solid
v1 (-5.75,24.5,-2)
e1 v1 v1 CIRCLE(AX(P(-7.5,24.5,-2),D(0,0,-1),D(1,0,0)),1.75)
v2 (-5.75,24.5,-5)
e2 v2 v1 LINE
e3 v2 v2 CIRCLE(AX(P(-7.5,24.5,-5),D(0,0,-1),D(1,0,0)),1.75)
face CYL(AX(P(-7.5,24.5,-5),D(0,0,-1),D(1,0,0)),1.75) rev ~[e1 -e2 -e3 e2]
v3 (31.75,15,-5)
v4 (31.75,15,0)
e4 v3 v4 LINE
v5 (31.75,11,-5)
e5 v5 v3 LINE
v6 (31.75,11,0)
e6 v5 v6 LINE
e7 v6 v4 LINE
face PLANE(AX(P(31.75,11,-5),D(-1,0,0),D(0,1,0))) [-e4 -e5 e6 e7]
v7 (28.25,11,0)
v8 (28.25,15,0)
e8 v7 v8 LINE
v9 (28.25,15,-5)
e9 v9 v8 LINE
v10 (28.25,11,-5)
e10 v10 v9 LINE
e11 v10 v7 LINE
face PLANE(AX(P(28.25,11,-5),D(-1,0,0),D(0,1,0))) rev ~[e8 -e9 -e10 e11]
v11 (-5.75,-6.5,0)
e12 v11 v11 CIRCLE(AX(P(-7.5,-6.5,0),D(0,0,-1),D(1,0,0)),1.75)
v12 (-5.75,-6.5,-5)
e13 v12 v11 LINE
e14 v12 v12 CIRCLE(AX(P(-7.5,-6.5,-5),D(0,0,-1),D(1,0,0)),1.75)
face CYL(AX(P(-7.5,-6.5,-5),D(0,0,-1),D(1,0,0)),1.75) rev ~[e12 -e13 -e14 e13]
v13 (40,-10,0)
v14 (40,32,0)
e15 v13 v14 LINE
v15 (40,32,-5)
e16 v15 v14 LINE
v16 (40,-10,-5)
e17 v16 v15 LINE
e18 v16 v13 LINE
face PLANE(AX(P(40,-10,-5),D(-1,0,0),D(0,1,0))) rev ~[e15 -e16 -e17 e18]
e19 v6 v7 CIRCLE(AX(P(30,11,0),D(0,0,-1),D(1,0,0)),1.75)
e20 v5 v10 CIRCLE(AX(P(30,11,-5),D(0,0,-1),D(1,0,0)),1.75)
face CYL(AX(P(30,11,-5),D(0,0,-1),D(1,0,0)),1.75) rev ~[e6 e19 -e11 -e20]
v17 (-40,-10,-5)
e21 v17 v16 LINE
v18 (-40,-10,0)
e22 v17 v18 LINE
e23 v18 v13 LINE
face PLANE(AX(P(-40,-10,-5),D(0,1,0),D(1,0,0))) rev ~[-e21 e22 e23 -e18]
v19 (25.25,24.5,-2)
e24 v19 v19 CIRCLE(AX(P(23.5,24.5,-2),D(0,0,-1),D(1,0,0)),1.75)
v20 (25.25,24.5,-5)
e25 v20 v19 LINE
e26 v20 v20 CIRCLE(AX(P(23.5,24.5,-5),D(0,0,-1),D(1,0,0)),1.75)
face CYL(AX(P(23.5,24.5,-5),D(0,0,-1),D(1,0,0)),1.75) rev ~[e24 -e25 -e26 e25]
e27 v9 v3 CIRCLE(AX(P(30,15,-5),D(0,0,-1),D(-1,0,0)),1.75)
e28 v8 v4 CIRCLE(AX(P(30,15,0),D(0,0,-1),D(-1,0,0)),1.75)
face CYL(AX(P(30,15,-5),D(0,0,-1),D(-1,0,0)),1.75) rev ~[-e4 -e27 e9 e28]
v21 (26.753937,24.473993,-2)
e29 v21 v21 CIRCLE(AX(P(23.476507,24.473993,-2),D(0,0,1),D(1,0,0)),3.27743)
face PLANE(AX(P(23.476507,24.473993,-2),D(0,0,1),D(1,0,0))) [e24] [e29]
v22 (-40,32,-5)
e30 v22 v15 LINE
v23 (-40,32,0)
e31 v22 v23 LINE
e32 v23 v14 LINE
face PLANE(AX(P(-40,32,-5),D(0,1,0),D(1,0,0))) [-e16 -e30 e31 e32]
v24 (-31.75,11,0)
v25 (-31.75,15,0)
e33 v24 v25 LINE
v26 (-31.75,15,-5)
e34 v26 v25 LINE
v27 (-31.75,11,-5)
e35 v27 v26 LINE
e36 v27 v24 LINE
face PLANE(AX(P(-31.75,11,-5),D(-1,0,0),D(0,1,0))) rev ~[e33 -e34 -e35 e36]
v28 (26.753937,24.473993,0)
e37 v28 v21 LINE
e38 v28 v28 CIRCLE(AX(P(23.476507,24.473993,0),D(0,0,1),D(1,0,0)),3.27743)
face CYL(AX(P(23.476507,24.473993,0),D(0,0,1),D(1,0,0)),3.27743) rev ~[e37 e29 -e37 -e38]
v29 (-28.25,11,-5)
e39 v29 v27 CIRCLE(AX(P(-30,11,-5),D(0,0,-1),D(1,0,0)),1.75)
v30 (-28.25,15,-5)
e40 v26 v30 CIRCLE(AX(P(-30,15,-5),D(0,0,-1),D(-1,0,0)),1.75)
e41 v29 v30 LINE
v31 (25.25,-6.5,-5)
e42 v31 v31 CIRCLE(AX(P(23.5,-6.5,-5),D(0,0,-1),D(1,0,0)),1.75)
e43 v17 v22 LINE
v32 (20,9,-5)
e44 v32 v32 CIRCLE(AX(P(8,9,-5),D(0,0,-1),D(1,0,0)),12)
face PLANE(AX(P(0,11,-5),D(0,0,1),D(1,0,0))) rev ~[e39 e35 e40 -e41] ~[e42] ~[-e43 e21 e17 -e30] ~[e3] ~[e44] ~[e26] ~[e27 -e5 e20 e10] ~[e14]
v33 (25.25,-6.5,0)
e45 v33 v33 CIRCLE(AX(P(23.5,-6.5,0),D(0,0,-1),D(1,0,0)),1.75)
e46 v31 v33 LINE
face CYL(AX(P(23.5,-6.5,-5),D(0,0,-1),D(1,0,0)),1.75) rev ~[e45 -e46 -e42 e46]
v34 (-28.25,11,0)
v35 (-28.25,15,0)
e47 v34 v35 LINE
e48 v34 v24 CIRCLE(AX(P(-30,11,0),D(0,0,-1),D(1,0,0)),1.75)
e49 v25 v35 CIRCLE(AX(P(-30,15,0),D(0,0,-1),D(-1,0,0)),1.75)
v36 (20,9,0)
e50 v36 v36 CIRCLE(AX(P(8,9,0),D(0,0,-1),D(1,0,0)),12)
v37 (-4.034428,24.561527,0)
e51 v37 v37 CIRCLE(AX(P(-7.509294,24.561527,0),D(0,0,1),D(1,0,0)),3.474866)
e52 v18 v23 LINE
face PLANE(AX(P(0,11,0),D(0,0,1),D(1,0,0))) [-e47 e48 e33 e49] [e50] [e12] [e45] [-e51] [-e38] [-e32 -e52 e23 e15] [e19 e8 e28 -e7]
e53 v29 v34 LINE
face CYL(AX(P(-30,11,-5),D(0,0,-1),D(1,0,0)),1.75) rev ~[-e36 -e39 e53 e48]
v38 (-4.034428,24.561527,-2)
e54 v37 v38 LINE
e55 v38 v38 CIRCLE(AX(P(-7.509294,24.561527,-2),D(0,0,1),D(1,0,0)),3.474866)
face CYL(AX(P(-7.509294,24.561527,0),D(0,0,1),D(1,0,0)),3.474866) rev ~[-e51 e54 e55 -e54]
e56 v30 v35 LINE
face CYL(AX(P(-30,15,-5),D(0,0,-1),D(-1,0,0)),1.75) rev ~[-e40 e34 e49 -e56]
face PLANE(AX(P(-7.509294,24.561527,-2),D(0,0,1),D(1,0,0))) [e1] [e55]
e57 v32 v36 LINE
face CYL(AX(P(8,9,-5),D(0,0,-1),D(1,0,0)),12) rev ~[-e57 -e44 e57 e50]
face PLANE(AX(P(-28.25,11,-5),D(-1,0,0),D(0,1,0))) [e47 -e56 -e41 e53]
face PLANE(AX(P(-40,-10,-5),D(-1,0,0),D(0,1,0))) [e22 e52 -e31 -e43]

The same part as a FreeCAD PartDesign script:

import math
import FreeCAD as App
import Part
import Sketcher

V = App.Vector


def add_polygon(sketch, points):
    """Adds a closed chain of lines whose ends are joined by coincident constraints."""
    first, n = sketch.GeometryCount, len(points)
    for a, b in zip(points, points[1:] + points[:1]):
        sketch.addGeometry(Part.LineSegment(App.Vector(*a, 0), App.Vector(*b, 0)), False)
    for i in range(n):
        sketch.addConstraint(Sketcher.Constraint("Coincident", first + i, 2, first + (i + 1) % n, 1))

doc = App.newDocument("Part")
body = doc.addObject("PartDesign::Body", "Body")

sketch1 = body.newObject("Sketcher::SketchObject", "Sketch")
sketch1.AttachmentSupport = (doc.getObject("XY_Plane"), [""])
sketch1.MapMode = "FlatFace"
add_polygon(sketch1, [(-40, 32), (-40, -10), (40, -10), (40, 32)])
sketch1.addConstraint([
    Sketcher.Constraint("Vertical", 0),
    Sketcher.Constraint("Horizontal", 1),
    Sketcher.Constraint("Vertical", 2),
    Sketcher.Constraint("Horizontal", 3),
    Sketcher.Constraint("DistanceX", 1, 1, 1, 2, 80.0),
    Sketcher.Constraint("DistanceY", 0, 2, 0, 1, 42.0),
    Sketcher.Constraint("DistanceX", 0, 2, -1, 1, 40.0),
    Sketcher.Constraint("DistanceY", 0, 2, -1, 1, 10.0),
])
pad1 = body.newObject("PartDesign::Pad", "Pad")
pad1.Profile = sketch1
pad1.Length = 5

sketch2 = body.newObject("Sketcher::SketchObject", "Sketch001")
sketch2.AttachmentSupport = (doc.getObject("XY_Plane"), [""])
sketch2.MapMode = "FlatFace"
sketch2.addGeometry([
    Part.Circle(V(8, 9, 0), V(0, 0, 1), 12),
    Part.Circle(V(-7.5, -6.5, 0), V(0, 0, 1), 1.75),
    Part.Circle(V(23.5, -6.5, 0), V(0, 0, 1), 1.75),
    Part.Circle(V(-7.5, 24.5, 0), V(0, 0, 1), 1.75),
    Part.Circle(V(23.5, 24.5, 0), V(0, 0, 1), 1.75),
    Part.ArcOfCircle(Part.Circle(V(-30, 11, 0), V(0, 0, 1), 1.75), math.radians(180), math.radians(360)),
    Part.LineSegment(V(-31.75, 11, 0), V(-31.75, 15, 0)),
    Part.ArcOfCircle(Part.Circle(V(-30, 15, 0), V(0, 0, 1), 1.75), math.radians(0), math.radians(180)),
    Part.LineSegment(V(-28.25, 15, 0), V(-28.25, 11, 0)),
    Part.ArcOfCircle(Part.Circle(V(30, 11, 0), V(0, 0, 1), 1.75), math.radians(180), math.radians(360)),
    Part.LineSegment(V(28.25, 11, 0), V(28.25, 15, 0)),
    Part.ArcOfCircle(Part.Circle(V(30, 15, 0), V(0, 0, 1), 1.75), math.radians(0), math.radians(180)),
    Part.LineSegment(V(31.75, 15, 0), V(31.75, 11, 0)),
], False)
sketch2.addConstraint([
    Sketcher.Constraint("Tangent", 5, 1, 6, 1),
    Sketcher.Constraint("Tangent", 6, 2, 7, 2),
    Sketcher.Constraint("Tangent", 7, 1, 8, 1),
    Sketcher.Constraint("Tangent", 8, 2, 5, 2),
    Sketcher.Constraint("Tangent", 9, 1, 10, 1),
    Sketcher.Constraint("Tangent", 10, 2, 11, 2),
    Sketcher.Constraint("Tangent", 11, 1, 12, 1),
    Sketcher.Constraint("Tangent", 12, 2, 9, 2),
    Sketcher.Constraint("Vertical", 6),
    Sketcher.Constraint("Vertical", 8),
    Sketcher.Constraint("Vertical", 10),
    Sketcher.Constraint("Vertical", 12),
    Sketcher.Constraint("Equal", 1, 2),
    Sketcher.Constraint("Equal", 2, 3),
    Sketcher.Constraint("Equal", 3, 4),
    Sketcher.Constraint("Equal", 4, 5),
    Sketcher.Constraint("Equal", 7, 9),
    Sketcher.Constraint("Symmetric", 5, 3, 9, 3, -2),
    Sketcher.Constraint("Horizontal", 1, 3, 2, 3),
    Sketcher.Constraint("Horizontal", 3, 3, 4, 3),
    Sketcher.Constraint("Horizontal", 7, 3, 11, 3),
    Sketcher.Constraint("Vertical", 1, 3, 3, 3),
    Sketcher.Constraint("Vertical", 2, 3, 4, 3),
    Sketcher.Constraint("Diameter", 0, 24.0),
    Sketcher.Constraint("Diameter", 1, 3.5),
    Sketcher.Constraint("DistanceY", 6, 1, 6, 2, 4.0),
    Sketcher.Constraint("DistanceX", -1, 1, 0, 3, 8.0),
    Sketcher.Constraint("DistanceY", -1, 1, 0, 3, 9.0),
    Sketcher.Constraint("DistanceX", 5, 3, -1, 1, 30.0),
    Sketcher.Constraint("DistanceY", -1, 1, 5, 3, 11.0),
    Sketcher.Constraint("DistanceX", 1, 3, 2, 3, 31.0),
    Sketcher.Constraint("DistanceY", 1, 3, 3, 3, 31.0),
    Sketcher.Constraint("DistanceX", 1, 3, -1, 1, 7.5),
    Sketcher.Constraint("DistanceY", 1, 3, -1, 1, 6.5),
])
pocket1 = body.newObject("PartDesign::Pocket", "Pocket")
pocket1.Profile = sketch2
pocket1.Length = 5
pocket1.Reversed = True

sketch3 = body.newObject("Sketcher::SketchObject", "Sketch002")
sketch3.AttachmentSupport = (doc.getObject("XY_Plane"), [""])
sketch3.MapMode = "FlatFace"
sketch3.AttachmentOffset = App.Placement(V(0, 0, 5), App.Rotation())
sketch3.addGeometry([
    Part.Circle(V(-7.509294, 24.561527, 0), V(0, 0, 1), 3.474866),
    Part.Circle(V(23.476507, 24.473993, 0), V(0, 0, 1), 3.27743),
], False)
sketch3.addConstraint([
    Sketcher.Constraint("Diameter", 1, 6.55486),
    Sketcher.Constraint("Diameter", 0, 6.949732),
    Sketcher.Constraint("DistanceX", 0, 3, 1, 3, 30.985801),
    Sketcher.Constraint("DistanceX", 0, 3, -1, 1, 7.509294),
    Sketcher.Constraint("DistanceY", -1, 1, 0, 3, 24.561527),
    Sketcher.Constraint("DistanceY", -1, 1, 1, 3, 24.473993),
])
pocket2 = body.newObject("PartDesign::Pocket", "Pocket001")
pocket2.Profile = sketch3
pocket2.Length = 2
body2 = doc.addObject("PartDesign::Body", "Body001")
doc.recompute()

body.Placement = App.Placement(V(0, 0, -5), App.Rotation(V(0, 0, 1), 0))
boolean = body2.newObject("PartDesign::Boolean", "Boolean")
boolean.Type = "Fuse"
boolean.addObjects([body])

doc.recompute()
